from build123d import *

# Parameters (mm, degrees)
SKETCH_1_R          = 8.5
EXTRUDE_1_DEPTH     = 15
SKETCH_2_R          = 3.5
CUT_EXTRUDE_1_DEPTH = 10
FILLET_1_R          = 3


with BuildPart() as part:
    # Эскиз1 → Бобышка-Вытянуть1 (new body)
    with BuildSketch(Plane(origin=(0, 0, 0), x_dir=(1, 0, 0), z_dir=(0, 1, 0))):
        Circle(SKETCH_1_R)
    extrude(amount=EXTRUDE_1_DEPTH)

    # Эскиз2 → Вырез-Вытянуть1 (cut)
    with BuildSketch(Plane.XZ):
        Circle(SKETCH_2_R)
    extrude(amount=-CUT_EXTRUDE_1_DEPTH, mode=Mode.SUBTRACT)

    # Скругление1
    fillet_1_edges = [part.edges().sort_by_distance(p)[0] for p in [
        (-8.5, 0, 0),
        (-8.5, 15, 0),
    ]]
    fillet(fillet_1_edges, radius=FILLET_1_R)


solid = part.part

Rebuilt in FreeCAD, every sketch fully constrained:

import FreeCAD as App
import Part
import Sketcher
Q = App.Units.Quantity


def edges_at(feature, points):
    """Names of the edges that pass closest to the given points."""
    edges = feature.Shape.Edges
    near = lambda p: min(range(len(edges)), key=lambda i: edges[i].distToShape(Part.Vertex(*p))[0])
    return sorted({f"Edge{near(p) + 1}" for p in points})

doc = App.newDocument("Part")
body = doc.addObject("PartDesign::Body", "Body")

# Sketch on XZ plane
sketch1 = body.newObject("Sketcher::SketchObject", "Sketch")
sketch1.AttachmentSupport = (doc.getObject("XZ_Plane"), [""])
sketch1.MapMode = "FlatFace"
sketch1.addGeometry(Part.Circle(App.Vector(0, 0, 0), App.Vector(0, 0, 1), 8), False)
sketch1.addConstraint(Sketcher.Constraint("Coincident", 0, 3, -1, 1))
sketch1.addConstraint(Sketcher.Constraint("Diameter", 0, Q("17 mm")))
pad1 = body.newObject("PartDesign::Pad", "Pad")
pad1.Profile = sketch1
pad1.Length = 15
pad1.Reversed = True

# Sketch on XZ plane
sketch2 = body.newObject("Sketcher::SketchObject", "Sketch001")
sketch2.AttachmentSupport = (doc.getObject("XZ_Plane"), [""])
sketch2.MapMode = "FlatFace"
sketch2.addGeometry(Part.Circle(App.Vector(0, 0, 0), App.Vector(0, 0, 1), 3.5), False)
sketch2.addConstraint(Sketcher.Constraint("Coincident", 0, 3, -1, 1))
sketch2.addConstraint(Sketcher.Constraint("Diameter", 0, Q("7 mm")))
pocket1 = body.newObject("PartDesign::Pocket", "Pocket")
pocket1.Profile = sketch2
pocket1.Length = 10
doc.recompute()

fillet = body.newObject("PartDesign::Fillet", "Fillet")
fillet.Base = (pocket1, edges_at(pocket1, [(-8.5, 0, 0), (-8.5, 15, 0)]))
fillet.Radius = 3

doc.recompute()
